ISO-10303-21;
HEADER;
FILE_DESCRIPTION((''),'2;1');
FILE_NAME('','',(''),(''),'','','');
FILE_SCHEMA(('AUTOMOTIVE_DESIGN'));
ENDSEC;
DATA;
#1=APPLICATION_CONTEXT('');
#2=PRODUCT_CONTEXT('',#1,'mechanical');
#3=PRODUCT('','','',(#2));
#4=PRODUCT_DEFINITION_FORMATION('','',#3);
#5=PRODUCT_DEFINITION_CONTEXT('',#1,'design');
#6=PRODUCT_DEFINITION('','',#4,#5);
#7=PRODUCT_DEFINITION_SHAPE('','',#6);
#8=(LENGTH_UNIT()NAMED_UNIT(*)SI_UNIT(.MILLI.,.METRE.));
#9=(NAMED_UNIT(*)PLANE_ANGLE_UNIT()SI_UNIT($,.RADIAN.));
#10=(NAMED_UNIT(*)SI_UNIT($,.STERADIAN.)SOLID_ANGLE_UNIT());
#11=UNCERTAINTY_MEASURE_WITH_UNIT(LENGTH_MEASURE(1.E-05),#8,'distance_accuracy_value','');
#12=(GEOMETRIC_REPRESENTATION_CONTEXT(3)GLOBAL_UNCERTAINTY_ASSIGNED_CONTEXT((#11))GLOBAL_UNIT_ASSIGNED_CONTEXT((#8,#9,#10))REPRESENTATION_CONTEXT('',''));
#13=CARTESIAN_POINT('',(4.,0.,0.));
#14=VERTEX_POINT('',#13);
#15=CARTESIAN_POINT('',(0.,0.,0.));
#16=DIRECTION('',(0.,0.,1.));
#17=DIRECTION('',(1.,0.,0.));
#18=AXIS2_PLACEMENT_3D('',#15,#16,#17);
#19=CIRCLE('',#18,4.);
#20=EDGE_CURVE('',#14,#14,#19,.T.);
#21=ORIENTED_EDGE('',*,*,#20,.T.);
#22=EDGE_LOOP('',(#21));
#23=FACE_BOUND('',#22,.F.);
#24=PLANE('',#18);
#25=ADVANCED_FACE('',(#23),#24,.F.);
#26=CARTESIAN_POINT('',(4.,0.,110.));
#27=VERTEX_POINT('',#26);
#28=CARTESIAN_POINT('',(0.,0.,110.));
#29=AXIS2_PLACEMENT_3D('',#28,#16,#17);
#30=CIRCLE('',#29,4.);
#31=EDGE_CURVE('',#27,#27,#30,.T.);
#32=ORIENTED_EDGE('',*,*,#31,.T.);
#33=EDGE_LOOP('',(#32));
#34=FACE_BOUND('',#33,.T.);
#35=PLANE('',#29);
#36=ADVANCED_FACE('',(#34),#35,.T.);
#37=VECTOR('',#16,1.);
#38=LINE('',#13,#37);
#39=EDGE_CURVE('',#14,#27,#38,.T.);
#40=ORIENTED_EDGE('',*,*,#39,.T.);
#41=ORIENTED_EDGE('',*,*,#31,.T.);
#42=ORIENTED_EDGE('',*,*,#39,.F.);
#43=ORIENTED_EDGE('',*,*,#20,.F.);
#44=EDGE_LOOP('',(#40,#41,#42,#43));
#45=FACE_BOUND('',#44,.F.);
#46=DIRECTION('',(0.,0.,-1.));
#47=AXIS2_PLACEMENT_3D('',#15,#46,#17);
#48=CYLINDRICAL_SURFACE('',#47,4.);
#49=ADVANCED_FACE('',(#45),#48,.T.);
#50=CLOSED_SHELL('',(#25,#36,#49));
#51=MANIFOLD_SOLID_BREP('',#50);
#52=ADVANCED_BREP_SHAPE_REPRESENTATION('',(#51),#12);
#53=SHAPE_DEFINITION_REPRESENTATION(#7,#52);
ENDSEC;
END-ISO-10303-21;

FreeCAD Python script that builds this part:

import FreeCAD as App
import Part
import Sketcher

V = App.Vector

doc = App.newDocument("Part")
body = doc.addObject("PartDesign::Body", "Body")

# Sketch on XY plane
sketch1 = doc.addObject("Sketcher::SketchObject", "Sketch")
body.addObject(sketch1)
sketch1.AttachmentSupport = (doc.XY_Plane, [""])
sketch1.MapMode = "FlatFace"
sketch1.addGeometry(Part.Circle(V(0, 0, 0), V(0, 0, 1), 4), False)
sketch1.addConstraint([
    Sketcher.Constraint("Coincident", 0, 3, -1, 1),
    Sketcher.Constraint("Diameter", 0, 8.0),
])
pad1 = doc.addObject("PartDesign::Pad", "Pad")
body.addObject(pad1)
pad1.Profile = sketch1
pad1.Length = 110

doc.recompute()
